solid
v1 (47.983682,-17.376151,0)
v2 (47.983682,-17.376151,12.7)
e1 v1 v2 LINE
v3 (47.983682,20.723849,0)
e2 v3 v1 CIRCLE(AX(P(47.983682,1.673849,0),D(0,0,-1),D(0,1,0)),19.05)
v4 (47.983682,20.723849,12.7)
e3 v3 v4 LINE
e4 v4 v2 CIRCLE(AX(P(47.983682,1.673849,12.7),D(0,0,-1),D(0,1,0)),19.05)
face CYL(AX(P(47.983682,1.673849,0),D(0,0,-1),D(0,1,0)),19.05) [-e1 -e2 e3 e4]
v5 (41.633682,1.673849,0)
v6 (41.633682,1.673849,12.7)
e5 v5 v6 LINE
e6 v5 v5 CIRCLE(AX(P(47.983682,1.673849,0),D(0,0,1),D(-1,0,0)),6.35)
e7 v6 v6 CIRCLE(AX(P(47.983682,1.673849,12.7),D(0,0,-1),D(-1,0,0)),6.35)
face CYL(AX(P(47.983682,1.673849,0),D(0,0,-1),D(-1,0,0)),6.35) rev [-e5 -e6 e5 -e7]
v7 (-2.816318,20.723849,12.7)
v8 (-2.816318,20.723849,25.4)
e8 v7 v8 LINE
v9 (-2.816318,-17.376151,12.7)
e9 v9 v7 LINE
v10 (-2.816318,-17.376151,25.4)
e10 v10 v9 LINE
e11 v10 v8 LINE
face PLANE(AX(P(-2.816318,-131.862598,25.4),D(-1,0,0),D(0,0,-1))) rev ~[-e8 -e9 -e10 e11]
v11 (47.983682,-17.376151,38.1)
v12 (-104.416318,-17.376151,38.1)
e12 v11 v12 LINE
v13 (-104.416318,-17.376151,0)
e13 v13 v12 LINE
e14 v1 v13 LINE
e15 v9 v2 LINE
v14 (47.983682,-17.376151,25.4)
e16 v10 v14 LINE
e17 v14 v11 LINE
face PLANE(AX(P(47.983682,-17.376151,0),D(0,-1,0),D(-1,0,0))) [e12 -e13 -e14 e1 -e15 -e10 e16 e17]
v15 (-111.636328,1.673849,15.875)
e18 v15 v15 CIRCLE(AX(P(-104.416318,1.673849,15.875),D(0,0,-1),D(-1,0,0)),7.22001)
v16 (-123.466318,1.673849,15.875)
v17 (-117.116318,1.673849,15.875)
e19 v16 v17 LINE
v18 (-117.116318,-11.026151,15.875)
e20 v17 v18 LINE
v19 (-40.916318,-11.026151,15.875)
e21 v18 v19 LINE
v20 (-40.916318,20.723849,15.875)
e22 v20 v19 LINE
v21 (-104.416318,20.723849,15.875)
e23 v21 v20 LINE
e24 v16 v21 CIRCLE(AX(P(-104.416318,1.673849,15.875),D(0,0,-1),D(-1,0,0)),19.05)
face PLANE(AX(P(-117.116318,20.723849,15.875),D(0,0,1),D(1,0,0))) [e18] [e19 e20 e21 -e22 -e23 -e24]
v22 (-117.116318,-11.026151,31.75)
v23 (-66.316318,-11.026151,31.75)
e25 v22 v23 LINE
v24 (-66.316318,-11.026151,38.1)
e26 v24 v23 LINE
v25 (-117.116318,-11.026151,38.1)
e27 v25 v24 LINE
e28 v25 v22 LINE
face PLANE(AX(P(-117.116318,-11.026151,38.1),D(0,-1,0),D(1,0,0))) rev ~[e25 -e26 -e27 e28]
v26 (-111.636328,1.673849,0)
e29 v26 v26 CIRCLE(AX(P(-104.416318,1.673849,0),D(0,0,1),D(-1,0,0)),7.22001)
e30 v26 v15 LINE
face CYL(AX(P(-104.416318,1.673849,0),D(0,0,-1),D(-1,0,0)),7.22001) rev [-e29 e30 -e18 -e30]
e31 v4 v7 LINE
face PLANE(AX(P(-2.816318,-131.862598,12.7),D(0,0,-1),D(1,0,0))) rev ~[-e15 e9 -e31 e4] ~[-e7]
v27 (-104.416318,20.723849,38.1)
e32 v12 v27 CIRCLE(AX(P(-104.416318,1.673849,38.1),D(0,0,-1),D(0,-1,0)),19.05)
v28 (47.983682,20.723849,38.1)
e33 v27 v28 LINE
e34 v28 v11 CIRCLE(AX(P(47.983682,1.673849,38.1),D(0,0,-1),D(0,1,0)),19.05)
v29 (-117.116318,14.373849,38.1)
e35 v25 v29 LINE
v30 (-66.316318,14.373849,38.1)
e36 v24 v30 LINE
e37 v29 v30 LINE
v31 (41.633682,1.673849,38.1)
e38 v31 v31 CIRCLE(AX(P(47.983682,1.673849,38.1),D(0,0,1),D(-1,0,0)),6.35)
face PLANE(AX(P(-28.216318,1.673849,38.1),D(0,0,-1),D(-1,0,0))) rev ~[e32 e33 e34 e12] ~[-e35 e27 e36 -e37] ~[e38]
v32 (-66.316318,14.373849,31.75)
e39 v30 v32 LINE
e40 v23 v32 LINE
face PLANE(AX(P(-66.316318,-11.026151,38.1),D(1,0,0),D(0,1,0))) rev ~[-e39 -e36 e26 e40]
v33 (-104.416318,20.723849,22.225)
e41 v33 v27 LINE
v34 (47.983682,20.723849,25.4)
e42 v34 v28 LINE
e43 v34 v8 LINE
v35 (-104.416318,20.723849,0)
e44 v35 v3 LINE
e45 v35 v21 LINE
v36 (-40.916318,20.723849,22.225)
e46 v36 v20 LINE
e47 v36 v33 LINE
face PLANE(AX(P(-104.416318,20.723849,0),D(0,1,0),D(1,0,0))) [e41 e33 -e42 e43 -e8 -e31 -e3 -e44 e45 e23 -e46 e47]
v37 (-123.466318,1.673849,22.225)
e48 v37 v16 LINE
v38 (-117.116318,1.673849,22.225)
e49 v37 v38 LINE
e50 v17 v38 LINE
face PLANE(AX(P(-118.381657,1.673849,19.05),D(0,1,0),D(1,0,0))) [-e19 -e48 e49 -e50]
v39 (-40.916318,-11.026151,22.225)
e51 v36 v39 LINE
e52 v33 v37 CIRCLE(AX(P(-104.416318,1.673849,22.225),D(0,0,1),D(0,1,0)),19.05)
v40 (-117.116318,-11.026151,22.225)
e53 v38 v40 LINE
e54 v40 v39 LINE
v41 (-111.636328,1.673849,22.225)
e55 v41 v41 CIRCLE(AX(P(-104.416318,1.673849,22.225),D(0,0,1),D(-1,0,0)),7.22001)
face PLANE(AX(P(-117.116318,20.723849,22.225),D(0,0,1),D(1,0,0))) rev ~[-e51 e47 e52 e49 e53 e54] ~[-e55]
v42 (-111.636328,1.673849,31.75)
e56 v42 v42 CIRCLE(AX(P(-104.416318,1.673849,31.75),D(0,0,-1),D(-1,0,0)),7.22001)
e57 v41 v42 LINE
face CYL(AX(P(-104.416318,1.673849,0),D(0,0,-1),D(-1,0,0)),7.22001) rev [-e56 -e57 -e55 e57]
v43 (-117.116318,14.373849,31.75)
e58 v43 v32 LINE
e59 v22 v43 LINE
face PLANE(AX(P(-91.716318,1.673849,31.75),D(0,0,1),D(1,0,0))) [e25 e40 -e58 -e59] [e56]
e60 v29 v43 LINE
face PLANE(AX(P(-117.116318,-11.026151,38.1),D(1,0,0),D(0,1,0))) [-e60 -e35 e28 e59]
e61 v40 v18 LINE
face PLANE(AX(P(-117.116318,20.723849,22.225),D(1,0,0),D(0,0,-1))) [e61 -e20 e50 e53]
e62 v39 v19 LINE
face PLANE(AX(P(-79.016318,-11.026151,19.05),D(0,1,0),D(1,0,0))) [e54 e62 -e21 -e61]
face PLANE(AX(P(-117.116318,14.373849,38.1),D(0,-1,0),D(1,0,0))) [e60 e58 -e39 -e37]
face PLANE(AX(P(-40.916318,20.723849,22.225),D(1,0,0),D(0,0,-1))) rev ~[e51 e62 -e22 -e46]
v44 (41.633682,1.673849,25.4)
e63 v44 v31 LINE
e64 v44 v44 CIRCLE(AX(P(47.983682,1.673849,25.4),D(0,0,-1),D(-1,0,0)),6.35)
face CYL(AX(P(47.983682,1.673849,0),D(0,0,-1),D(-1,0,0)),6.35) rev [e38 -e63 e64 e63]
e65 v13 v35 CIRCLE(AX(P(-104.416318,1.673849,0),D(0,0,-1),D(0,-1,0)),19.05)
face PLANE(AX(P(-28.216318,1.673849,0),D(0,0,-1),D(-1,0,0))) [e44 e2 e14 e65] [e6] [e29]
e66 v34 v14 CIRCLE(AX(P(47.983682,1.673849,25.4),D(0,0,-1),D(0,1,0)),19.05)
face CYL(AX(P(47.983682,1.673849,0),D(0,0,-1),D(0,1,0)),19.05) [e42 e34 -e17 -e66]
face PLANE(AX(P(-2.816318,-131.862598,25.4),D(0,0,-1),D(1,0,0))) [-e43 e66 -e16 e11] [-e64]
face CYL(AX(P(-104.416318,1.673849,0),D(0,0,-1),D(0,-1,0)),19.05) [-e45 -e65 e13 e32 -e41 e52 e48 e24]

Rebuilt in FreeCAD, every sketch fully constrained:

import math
import FreeCAD as App
import Part
import Sketcher

V = App.Vector
Q = App.Units.Quantity


def add_polygon(sketch, points):
    """Adds a closed chain of lines whose ends are joined by coincident constraints."""
    first, n = sketch.GeometryCount, len(points)
    for a, b in zip(points, points[1:] + points[:1]):
        sketch.addGeometry(Part.LineSegment(App.Vector(*a, 0), App.Vector(*b, 0)), False)
    for i in range(n):
        sketch.addConstraint(Sketcher.Constraint("Coincident", first + i, 2, first + (i + 1) % n, 1))

doc = App.newDocument("Part")
params = doc.addObject("Spreadsheet::Sheet", "Params")
for row, (alias, value) in enumerate([
    ("sketch1_diameter", "0.5 in"),
    ("sketch1_width", "6 in"),
    ("sketch1_radius", "0.75 in"),
    ("pad1_length", "1.5 in"),
    ("sketch2_width", "2 in"),
    ("sketch2_height", "1 in"),
    ("pocket1_length", "0.25 in"),
    ("sketch3_width", "3 in"),
    ("sketch3_height", "0.5 in"),
    ("sketch4_width", "3 in"),
    ("sketch4_height", "0.25 in"),
    ("pocket3_length", "1.25 in"),
    ("sketch5_height", "0.25 in"),
    ("pocket4_length", "0.75 in"),
], start=1):
    params.set(f"A{row}", alias)
    params.set(f"B{row}", "=" + value)
    params.setAlias(f"B{row}", alias)

body = doc.addObject("PartDesign::Body", "Body")

# Sketch on XY plane
sketch1 = body.newObject("Sketcher::SketchObject", "Sketch")
sketch1.AttachmentSupport = (doc.getObject("XY_Plane"), [""])
sketch1.MapMode = "FlatFace"
sketch1.addGeometry([
    Part.LineSegment(V(48, 21, 0), V(-104, 21, 0)),  # 0
    Part.ArcOfCircle(Part.Circle(V(-104, 2, 0), V(0, 0, 1), 19), math.radians(90), math.radians(270)),  # 1
    Part.LineSegment(V(-104, -17, 0), V(48, -17, 0)),  # 2
    Part.ArcOfCircle(Part.Circle(V(48, 2, 0), V(0, 0, 1), 19), math.radians(-90), math.radians(90)),  # 3
    Part.Circle(V(48, 2, 0), V(0, 0, 1), 6),  # 4
    Part.Circle(V(-104, 2, 0), V(0, 0, 1), 7),  # 5
], False)
sketch1.addConstraint([
    Sketcher.Constraint("Tangent", 0, 2, 1, 1),
    Sketcher.Constraint("Tangent", 1, 2, 2, 1),
    Sketcher.Constraint("Tangent", 2, 2, 3, 1),
    Sketcher.Constraint("Tangent", 3, 2, 0, 1),
    Sketcher.Constraint("Horizontal", 0),
    Sketcher.Constraint("Horizontal", 2),
    Sketcher.Constraint("Coincident", 4, 3, 3, 3),
    Sketcher.Constraint("Coincident", 5, 3, 1, 3),
    Sketcher.Constraint("Diameter", 4, Q("0.5 in")),
    Sketcher.Constraint("DistanceX", 0, 2, 0, 1, Q("6 in")),
    Sketcher.Constraint("Radius", 1, Q("0.75 in")),
    Sketcher.Constraint("Diameter", 5, Q("14.44002 mm")),
    Sketcher.Constraint("DistanceY", -1, 1, 1, 3, Q("1.673849 mm")),
    Sketcher.Constraint("DistanceX", 1, 3, -1, 1, Q("104.416318 mm")),
])
sketch1.setExpression("Constraints[8]", "Params.sketch1_diameter")
sketch1.setExpression("Constraints[9]", "Params.sketch1_width")
sketch1.setExpression("Constraints[10]", "Params.sketch1_radius")
pad1 = body.newObject("PartDesign::Pad", "Pad")
pad1.Profile = sketch1
pad1.setExpression("Length", "Params.pad1_length")

# Sketch on XY plane
sketch2 = body.newObject("Sketcher::SketchObject", "Sketch001")
sketch2.AttachmentSupport = (doc.getObject("XY_Plane"), [""])
sketch2.MapMode = "FlatFace"
sketch2.AttachmentOffset = App.Placement(V(0, 0, 1.5 * 25.4), App.Rotation())
add_polygon(sketch2, [(-117, 14), (-117, -11), (-66, -11), (-66, 14)])  # lines 0-3
sketch2.addConstraint([
    Sketcher.Constraint("Vertical", 0),
    Sketcher.Constraint("Horizontal", 1),
    Sketcher.Constraint("Vertical", 2),
    Sketcher.Constraint("Horizontal", 3),
    Sketcher.Constraint("DistanceX", 1, 1, 1, 2, Q("2 in")),
    Sketcher.Constraint("DistanceY", 0, 2, 0, 1, Q("1 in")),
    Sketcher.Constraint("DistanceY", 0, 2, -1, 1, Q("11.026151 mm")),
    Sketcher.Constraint("DistanceX", 0, 2, -1, 1, Q("117.116318 mm")),
])
sketch2.setExpression("Constraints[8]", "Params.sketch2_width")
sketch2.setExpression("Constraints[9]", "Params.sketch2_height")
pocket1 = body.newObject("PartDesign::Pocket", "Pocket")
pocket1.Profile = sketch2
pocket1.setExpression("Length", "Params.pocket1_length")

# Sketch on XZ plane
sketch3 = body.newObject("Sketcher::SketchObject", "Sketch002")
sketch3.AttachmentSupport = (doc.getObject("XZ_Plane"), [""])
sketch3.MapMode = "FlatFace"
add_polygon(sketch3, [(-3, 13), (-3, 25), (73, 25), (73, 13)])  # lines 0-3
sketch3.addConstraint([
    Sketcher.Constraint("Vertical", 0),
    Sketcher.Constraint("Horizontal", 1),
    Sketcher.Constraint("Vertical", 2),
    Sketcher.Constraint("Horizontal", 3),
    Sketcher.Constraint("DistanceX", 1, 1, 1, 2, Q("3 in")),
    Sketcher.Constraint("DistanceY", 0, 1, 0, 2, Q("0.5 in")),
    Sketcher.Constraint("DistanceY", -1, 1, 0, 2, Q("1 in")),
    Sketcher.Constraint("DistanceX", 0, 2, -1, 1, Q("2.816318 mm")),
])
sketch3.setExpression("Constraints[8]", "Params.sketch3_width")
sketch3.setExpression("Constraints[9]", "Params.sketch3_height")
pocket2 = body.newObject("PartDesign::Pocket", "Pocket001")
pocket2.Profile = sketch3
pocket2.Type = "ThroughAll"
pocket2.Midplane = True

# Sketch on XZ plane
sketch4 = body.newObject("Sketcher::SketchObject", "Sketch003")
sketch4.AttachmentSupport = (doc.getObject("XZ_Plane"), [""])
sketch4.MapMode = "FlatFace"
sketch4.AttachmentOffset = App.Placement(V(0, 0, -20.723849), App.Rotation())
add_polygon(sketch4, [(-117, 16), (-117, 22), (-41, 22), (-41, 16)])  # lines 0-3
sketch4.addConstraint([
    Sketcher.Constraint("Vertical", 0),
    Sketcher.Constraint("Horizontal", 1),
    Sketcher.Constraint("Vertical", 2),
    Sketcher.Constraint("Horizontal", 3),
    Sketcher.Constraint("DistanceX", 1, 1, 1, 2, Q("3 in")),
    Sketcher.Constraint("DistanceY", 0, 1, 0, 2, Q("0.25 in")),
    Sketcher.Constraint("DistanceY", -1, 1, 0, 2, Q("0.875 in")),
    Sketcher.Constraint("DistanceX", 0, 2, -1, 1, Q("117.116318 mm")),
])
sketch4.setExpression("Constraints[8]", "Params.sketch4_width")
sketch4.setExpression("Constraints[9]", "Params.sketch4_height")
pocket3 = body.newObject("PartDesign::Pocket", "Pocket002")
pocket3.Profile = sketch4
pocket3.setExpression("Length", "Params.pocket3_length")
pocket3.Reversed = True

# Sketch on XZ plane
sketch5 = body.newObject("Sketcher::SketchObject", "Sketch004")
sketch5.AttachmentSupport = (doc.getObject("XZ_Plane"), [""])
sketch5.MapMode = "FlatFace"
sketch5.AttachmentOffset = App.Placement(V(0, 0, -20.723849), App.Rotation())
add_polygon(sketch5, [(-135, 16), (-135, 22), (-102, 22), (-102, 16)])  # lines 0-3
sketch5.addConstraint([
    Sketcher.Constraint("Vertical", 0),
    Sketcher.Constraint("Horizontal", 1),
    Sketcher.Constraint("Vertical", 2),
    Sketcher.Constraint("Horizontal", 3),
    Sketcher.Constraint("DistanceY", 0, 1, 0, 2, Q("0.25 in")),
    Sketcher.Constraint("DistanceY", -1, 1, 0, 2, Q("0.875 in")),
    Sketcher.Constraint("DistanceX", 1, 1, 1, 2, Q("32.699692 mm")),
    Sketcher.Constraint("DistanceX", 1, 2, -1, 1, Q("102.031811 mm")),
])
sketch5.setExpression("Constraints[8]", "Params.sketch5_height")
pocket4 = body.newObject("PartDesign::Pocket", "Pocket003")
pocket4.Profile = sketch5
pocket4.setExpression("Length", "Params.pocket4_length")
pocket4.Reversed = True

doc.recompute()
